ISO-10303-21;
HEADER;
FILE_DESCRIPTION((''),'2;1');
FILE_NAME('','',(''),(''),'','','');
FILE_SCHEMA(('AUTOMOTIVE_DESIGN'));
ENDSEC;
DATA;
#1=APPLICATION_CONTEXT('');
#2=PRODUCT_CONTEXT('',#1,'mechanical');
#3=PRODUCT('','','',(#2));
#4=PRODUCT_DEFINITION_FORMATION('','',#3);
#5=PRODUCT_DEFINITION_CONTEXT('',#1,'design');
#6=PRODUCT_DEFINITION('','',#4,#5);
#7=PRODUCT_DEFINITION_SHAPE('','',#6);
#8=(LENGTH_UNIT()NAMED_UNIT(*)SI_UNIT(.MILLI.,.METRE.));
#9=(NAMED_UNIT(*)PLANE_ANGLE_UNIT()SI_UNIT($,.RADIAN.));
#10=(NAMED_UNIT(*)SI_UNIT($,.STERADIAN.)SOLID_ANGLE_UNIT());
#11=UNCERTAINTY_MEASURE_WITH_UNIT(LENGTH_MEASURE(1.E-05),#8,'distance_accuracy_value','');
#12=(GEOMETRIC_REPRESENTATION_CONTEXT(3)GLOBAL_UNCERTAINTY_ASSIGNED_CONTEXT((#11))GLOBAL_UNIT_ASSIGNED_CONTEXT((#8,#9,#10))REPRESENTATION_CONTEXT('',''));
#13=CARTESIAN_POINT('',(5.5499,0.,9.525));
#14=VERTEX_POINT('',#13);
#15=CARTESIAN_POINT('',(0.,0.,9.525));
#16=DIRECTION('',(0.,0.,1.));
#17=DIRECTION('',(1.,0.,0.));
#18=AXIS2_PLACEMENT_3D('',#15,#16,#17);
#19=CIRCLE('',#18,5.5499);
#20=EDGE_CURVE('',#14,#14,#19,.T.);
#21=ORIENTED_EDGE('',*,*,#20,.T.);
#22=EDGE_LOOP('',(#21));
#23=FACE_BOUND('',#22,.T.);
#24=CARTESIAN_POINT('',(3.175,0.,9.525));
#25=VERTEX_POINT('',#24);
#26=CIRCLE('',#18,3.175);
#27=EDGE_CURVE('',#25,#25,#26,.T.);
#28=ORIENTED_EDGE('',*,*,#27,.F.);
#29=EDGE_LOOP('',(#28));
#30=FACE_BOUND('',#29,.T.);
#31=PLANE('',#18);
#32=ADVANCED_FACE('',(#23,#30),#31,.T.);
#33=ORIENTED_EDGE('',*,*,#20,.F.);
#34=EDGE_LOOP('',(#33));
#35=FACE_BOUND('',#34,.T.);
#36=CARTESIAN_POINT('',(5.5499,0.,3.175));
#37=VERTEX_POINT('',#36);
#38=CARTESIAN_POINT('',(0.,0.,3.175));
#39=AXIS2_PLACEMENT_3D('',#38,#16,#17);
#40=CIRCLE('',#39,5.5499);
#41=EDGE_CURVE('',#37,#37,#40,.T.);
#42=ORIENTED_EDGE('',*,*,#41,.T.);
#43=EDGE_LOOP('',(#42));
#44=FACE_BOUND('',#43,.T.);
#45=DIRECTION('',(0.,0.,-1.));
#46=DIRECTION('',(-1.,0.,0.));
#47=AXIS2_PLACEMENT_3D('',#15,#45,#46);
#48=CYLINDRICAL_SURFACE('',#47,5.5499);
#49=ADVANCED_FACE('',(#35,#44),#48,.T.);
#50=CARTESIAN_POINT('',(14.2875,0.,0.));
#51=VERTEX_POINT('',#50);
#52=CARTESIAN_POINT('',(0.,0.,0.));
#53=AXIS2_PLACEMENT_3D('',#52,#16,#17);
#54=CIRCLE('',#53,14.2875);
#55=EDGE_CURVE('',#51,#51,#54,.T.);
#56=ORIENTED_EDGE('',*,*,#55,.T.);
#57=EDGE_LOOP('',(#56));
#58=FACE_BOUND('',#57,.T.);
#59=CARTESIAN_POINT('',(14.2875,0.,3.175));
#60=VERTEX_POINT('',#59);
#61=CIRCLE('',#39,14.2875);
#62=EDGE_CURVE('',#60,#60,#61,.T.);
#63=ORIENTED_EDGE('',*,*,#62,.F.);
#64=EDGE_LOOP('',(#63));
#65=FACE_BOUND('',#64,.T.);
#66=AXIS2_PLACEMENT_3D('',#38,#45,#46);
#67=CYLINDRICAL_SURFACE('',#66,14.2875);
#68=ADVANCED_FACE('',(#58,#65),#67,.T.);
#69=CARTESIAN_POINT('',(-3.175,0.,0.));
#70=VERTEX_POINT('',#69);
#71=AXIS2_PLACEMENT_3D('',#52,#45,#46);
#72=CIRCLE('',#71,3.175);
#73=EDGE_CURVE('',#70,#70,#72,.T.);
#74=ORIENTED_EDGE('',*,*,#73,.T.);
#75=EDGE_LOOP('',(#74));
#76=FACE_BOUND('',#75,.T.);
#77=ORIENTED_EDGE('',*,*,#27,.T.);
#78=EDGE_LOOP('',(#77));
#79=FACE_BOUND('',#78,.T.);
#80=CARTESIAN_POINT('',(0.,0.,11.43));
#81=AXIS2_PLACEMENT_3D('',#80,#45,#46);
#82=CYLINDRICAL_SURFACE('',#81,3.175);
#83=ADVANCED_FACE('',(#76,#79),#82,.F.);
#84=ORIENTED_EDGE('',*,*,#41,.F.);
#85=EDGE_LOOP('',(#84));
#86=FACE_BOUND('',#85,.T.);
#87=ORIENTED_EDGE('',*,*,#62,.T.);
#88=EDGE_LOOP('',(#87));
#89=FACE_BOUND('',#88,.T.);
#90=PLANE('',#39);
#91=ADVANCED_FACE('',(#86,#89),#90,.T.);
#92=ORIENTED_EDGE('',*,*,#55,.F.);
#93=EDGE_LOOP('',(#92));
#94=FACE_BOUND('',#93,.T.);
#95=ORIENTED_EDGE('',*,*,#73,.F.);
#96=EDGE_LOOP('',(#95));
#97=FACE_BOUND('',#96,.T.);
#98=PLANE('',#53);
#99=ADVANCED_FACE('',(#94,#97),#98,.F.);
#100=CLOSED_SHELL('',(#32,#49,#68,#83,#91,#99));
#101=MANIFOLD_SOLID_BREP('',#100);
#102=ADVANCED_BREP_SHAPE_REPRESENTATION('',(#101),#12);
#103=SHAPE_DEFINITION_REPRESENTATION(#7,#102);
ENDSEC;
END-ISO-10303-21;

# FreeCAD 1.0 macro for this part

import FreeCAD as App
import Part
import Sketcher
Q = App.Units.Quantity

doc = App.newDocument("Part")
params = doc.addObject("Spreadsheet::Sheet", "Params")
for row, (alias, value) in enumerate([
    ("sketch1_diameter", "1.125 in"),
    ("pad1_length", "0.125 in"),
    ("sketch2_diameter", "0.437 in"),
    ("pad2_length", "0.25 in"),
    ("sketch3_diameter", "0.25 in"),
    ("pocket1_length", "0.45 in"),
], start=1):
    params.set(f"A{row}", alias)
    params.set(f"B{row}", "=" + value)
    params.setAlias(f"B{row}", alias)

body = doc.addObject("PartDesign::Body", "Body")

# Sketch on XY plane
sketch1 = body.newObject("Sketcher::SketchObject", "Sketch")
sketch1.AttachmentSupport = (doc.getObject("XY_Plane"), [""])
sketch1.MapMode = "FlatFace"
sketch1.addGeometry(Part.Circle(App.Vector(0, 0, 0), App.Vector(0, 0, 1), 14.2875), False)
sketch1.addConstraint(Sketcher.Constraint("Coincident", 0, 3, -1, 1))
sketch1.addConstraint(Sketcher.Constraint("Diameter", 0, Q("1.125 in")))
sketch1.setExpression("Constraints[1]", "Params.sketch1_diameter")
pad1 = body.newObject("PartDesign::Pad", "Pad")
pad1.Profile = sketch1
pad1.setExpression("Length", "Params.pad1_length")

# Sketch on XY plane
sketch2 = body.newObject("Sketcher::SketchObject", "Sketch001")
sketch2.AttachmentSupport = (doc.getObject("XY_Plane"), [""])
sketch2.MapMode = "FlatFace"
sketch2.AttachmentOffset = App.Placement(App.Vector(0, 0, 0.125 * 25.4), App.Rotation())
sketch2.addGeometry(Part.Circle(App.Vector(0, 0, 0), App.Vector(0, 0, 1), 5.5499), False)
sketch2.addConstraint(Sketcher.Constraint("Coincident", 0, 3, -1, 1))
sketch2.addConstraint(Sketcher.Constraint("Diameter", 0, Q("0.437 in")))
sketch2.setExpression("Constraints[1]", "Params.sketch2_diameter")
pad2 = body.newObject("PartDesign::Pad", "Pad001")
pad2.Profile = sketch2
pad2.setExpression("Length", "Params.pad2_length")

# Sketch on XY plane
sketch3 = body.newObject("Sketcher::SketchObject", "Sketch002")
sketch3.AttachmentSupport = (doc.getObject("XY_Plane"), [""])
sketch3.MapMode = "FlatFace"
sketch3.addGeometry(Part.Circle(App.Vector(0, 0, 0), App.Vector(0, 0, 1), 3.175), False)
sketch3.addConstraint(Sketcher.Constraint("Coincident", 0, 3, -1, 1))
sketch3.addConstraint(Sketcher.Constraint("Diameter", 0, Q("0.25 in")))
sketch3.setExpression("Constraints[1]", "Params.sketch3_diameter")
pocket1 = body.newObject("PartDesign::Pocket", "Pocket")
pocket1.Profile = sketch3
pocket1.setExpression("Length", "Params.pocket1_length")
pocket1.Reversed = True

doc.recompute()
